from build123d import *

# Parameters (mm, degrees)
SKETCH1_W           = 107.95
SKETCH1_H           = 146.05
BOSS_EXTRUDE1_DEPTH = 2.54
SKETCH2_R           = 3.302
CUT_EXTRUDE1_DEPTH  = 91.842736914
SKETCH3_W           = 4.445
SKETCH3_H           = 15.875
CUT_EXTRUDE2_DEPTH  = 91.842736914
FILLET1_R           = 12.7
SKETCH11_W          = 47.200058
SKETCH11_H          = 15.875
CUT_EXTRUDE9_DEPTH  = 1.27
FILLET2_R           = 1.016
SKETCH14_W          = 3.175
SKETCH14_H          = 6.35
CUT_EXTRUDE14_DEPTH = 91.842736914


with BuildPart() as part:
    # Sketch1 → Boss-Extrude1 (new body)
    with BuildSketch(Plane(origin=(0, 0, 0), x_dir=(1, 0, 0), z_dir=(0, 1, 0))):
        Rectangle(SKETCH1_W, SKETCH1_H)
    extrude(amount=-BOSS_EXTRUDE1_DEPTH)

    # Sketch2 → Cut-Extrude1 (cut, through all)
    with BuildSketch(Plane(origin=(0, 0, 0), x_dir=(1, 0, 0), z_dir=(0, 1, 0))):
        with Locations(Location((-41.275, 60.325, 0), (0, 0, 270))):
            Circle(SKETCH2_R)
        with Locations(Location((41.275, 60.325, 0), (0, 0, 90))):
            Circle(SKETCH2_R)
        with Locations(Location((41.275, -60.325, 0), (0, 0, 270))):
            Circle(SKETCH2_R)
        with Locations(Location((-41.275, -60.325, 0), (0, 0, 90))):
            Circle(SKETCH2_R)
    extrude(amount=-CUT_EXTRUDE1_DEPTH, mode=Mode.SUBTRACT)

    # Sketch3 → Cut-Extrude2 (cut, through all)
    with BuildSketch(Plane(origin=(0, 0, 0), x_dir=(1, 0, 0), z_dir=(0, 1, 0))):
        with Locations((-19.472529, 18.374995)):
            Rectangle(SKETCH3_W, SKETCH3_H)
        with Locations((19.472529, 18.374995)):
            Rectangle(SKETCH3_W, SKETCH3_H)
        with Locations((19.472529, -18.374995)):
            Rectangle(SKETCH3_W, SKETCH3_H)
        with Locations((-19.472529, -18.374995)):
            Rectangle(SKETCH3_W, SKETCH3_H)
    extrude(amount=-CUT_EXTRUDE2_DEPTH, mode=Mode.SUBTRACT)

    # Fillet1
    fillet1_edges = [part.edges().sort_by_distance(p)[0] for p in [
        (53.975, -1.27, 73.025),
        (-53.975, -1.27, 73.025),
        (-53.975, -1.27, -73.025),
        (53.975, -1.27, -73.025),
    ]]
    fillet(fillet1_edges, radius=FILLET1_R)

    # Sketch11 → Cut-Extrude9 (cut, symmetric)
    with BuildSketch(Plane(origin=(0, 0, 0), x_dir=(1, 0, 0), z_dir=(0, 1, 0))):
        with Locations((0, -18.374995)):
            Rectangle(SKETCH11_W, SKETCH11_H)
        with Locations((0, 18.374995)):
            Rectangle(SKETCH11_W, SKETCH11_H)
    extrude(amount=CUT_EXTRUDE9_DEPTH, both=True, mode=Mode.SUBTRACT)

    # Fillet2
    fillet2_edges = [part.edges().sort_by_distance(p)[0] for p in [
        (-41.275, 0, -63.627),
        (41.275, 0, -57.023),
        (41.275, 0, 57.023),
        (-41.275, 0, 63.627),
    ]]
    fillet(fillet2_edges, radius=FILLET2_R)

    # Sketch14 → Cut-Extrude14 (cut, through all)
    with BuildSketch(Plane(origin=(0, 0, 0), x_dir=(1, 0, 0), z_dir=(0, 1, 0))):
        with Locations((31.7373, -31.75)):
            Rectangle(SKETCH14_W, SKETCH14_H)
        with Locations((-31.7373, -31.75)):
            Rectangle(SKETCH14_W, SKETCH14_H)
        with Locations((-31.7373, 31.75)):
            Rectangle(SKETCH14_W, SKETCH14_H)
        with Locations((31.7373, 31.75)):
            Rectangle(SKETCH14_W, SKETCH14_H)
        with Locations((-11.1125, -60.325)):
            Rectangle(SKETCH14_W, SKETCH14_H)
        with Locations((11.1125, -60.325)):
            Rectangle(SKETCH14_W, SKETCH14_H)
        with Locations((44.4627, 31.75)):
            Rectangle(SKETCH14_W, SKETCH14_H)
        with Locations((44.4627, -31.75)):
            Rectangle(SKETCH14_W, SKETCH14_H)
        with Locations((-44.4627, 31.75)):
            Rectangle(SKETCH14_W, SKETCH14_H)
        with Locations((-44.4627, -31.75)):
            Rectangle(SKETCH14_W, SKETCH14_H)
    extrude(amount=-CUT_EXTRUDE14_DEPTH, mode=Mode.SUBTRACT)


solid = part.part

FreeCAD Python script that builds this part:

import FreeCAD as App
import Part
import Sketcher
Q = App.Units.Quantity


def edges_at(feature, points):
    """Names of the edges that pass closest to the given points."""
    edges = feature.Shape.Edges
    near = lambda p: min(range(len(edges)), key=lambda i: edges[i].distToShape(Part.Vertex(*p))[0])
    return sorted({f"Edge{near(p) + 1}" for p in points})


def add_polygon(sketch, points):
    """Adds a closed chain of lines whose ends are joined by coincident constraints."""
    first, n = sketch.GeometryCount, len(points)
    for a, b in zip(points, points[1:] + points[:1]):
        sketch.addGeometry(Part.LineSegment(App.Vector(*a, 0), App.Vector(*b, 0)), False)
    for i in range(n):
        sketch.addConstraint(Sketcher.Constraint("Coincident", first + i, 2, first + (i + 1) % n, 1))

doc = App.newDocument("Part")
params = doc.addObject("Spreadsheet::Sheet", "Params")
for row, (alias, value) in enumerate([
    ("sketch1_width", "4.25 in"),
    ("sketch1_height", "5.75 in"),
    ("pad1_length", "0.1 in"),
    ("sketch2_diameter", "0.26 in"),
    ("sketch3_width", "0.175 in"),
    ("sketch3_height", "0.625 in"),
    ("fillet_radius", "0.5 in"),
    ("sketch4_height", "0.625 in"),
    ("pocket3_length", "0.1 in"),
    ("fillet2_radius", "0.04 in"),
    ("sketch5_height", "0.25 in"),
    ("sketch5_width", "0.125 in"),
], start=1):
    params.set(f"A{row}", alias)
    params.set(f"B{row}", "=" + value)
    params.setAlias(f"B{row}", alias)

body = doc.addObject("PartDesign::Body", "Body")

sketch1 = body.newObject("Sketcher::SketchObject", "Sketch")
sketch1.AttachmentSupport = (doc.getObject("XZ_Plane"), [""])
sketch1.MapMode = "FlatFace"
add_polygon(sketch1, [(-54, -73), (-54, 73), (54, 73), (54, -73)])
sketch1.addConstraint([
    Sketcher.Constraint("Vertical", 0),
    Sketcher.Constraint("Horizontal", 1),
    Sketcher.Constraint("Vertical", 2),
    Sketcher.Constraint("Horizontal", 3),
    Sketcher.Constraint("Symmetric", 0, 2, 2, 2, -1, 1),
    Sketcher.Constraint("DistanceX", 1, 1, 1, 2, Q("4.25 in")),
    Sketcher.Constraint("DistanceY", 0, 1, 0, 2, Q("5.75 in")),
])
sketch1.setExpression("Constraints[9]", "Params.sketch1_width")
sketch1.setExpression("Constraints[10]", "Params.sketch1_height")
pad1 = body.newObject("PartDesign::Pad", "Pad")
pad1.Profile = sketch1
pad1.setExpression("Length", "Params.pad1_length")

sketch2 = body.newObject("Sketcher::SketchObject", "Sketch001")
sketch2.AttachmentSupport = (doc.getObject("XZ_Plane"), [""])
sketch2.MapMode = "FlatFace"
sketch2.addGeometry([
    Part.Circle(App.Vector(-41.3, -60.3, 0), App.Vector(0, 0, 1), 3.3),
    Part.Circle(App.Vector(41.3, -60.3, 0), App.Vector(0, 0, 1), 3.3),
    Part.Circle(App.Vector(41.3, 60.3, 0), App.Vector(0, 0, 1), 3.3),
    Part.Circle(App.Vector(-41.3, 60.3, 0), App.Vector(0, 0, 1), 3.3),
], False)
sketch2.addConstraint([
    Sketcher.Constraint("Equal", 0, 1),
    Sketcher.Constraint("Equal", 1, 2),
    Sketcher.Constraint("Equal", 2, 3),
    Sketcher.Constraint("Symmetric", 0, 3, 2, 3, -1, 1),
    Sketcher.Constraint("Symmetric", 1, 3, 3, 3, -1, 1),
    Sketcher.Constraint("Symmetric", 0, 3, 1, 3, -2),
    Sketcher.Constraint("Diameter", 0, Q("0.26 in")),
    Sketcher.Constraint("DistanceX", 0, 3, 1, 3, Q("3.25 in")),
    Sketcher.Constraint("DistanceY", 1, 3, 2, 3, Q("4.75 in")),
])
sketch2.setExpression("Constraints[6]", "Params.sketch2_diameter")
pocket1 = body.newObject("PartDesign::Pocket", "Pocket")
pocket1.Profile = sketch2
pocket1.Type = "ThroughAll"
pocket1.Reversed = True

sketch3 = body.newObject("Sketcher::SketchObject", "Sketch002")
sketch3.AttachmentSupport = (doc.getObject("XZ_Plane"), [""])
sketch3.MapMode = "FlatFace"
add_polygon(sketch3, [(-21.7, -26.3), (-21.7, -10.4), (-17.3, -10.4), (-17.3, -26.3)])
add_polygon(sketch3, [(17.3, -26.3), (17.3, -10.4), (21.7, -10.4), (21.7, -26.3)])
add_polygon(sketch3, [(17.3, 10.4), (17.3, 26.3), (21.7, 26.3), (21.7, 10.4)])
add_polygon(sketch3, [(-21.7, 10.4), (-21.7, 26.3), (-17.3, 26.3), (-17.3, 10.4)])
sketch3.addConstraint([
    Sketcher.Constraint("Vertical", 0),
    Sketcher.Constraint("Horizontal", 1),
    Sketcher.Constraint("Vertical", 2),
    Sketcher.Constraint("Horizontal", 3),
    Sketcher.Constraint("Vertical", 4),
    Sketcher.Constraint("Horizontal", 5),
    Sketcher.Constraint("Vertical", 6),
    Sketcher.Constraint("Horizontal", 7),
    Sketcher.Constraint("Vertical", 8),
    Sketcher.Constraint("Horizontal", 9),
    Sketcher.Constraint("Vertical", 10),
    Sketcher.Constraint("Horizontal", 11),
    Sketcher.Constraint("Vertical", 12),
    Sketcher.Constraint("Horizontal", 13),
    Sketcher.Constraint("Vertical", 14),
    Sketcher.Constraint("Horizontal", 15),
    Sketcher.Constraint("Symmetric", 2, 2, 8, 2, -1, 1),
    Sketcher.Constraint("Symmetric", 0, 2, 10, 2, -1, 1),
    Sketcher.Constraint("Symmetric", 6, 2, 12, 2, -1, 1),
    Sketcher.Constraint("Symmetric", 4, 2, 14, 2, -1, 1),
    Sketcher.Constraint("Symmetric", 1, 2, 4, 2, -2),
    Sketcher.Constraint("Symmetric", 3, 2, 6, 2, -2),
    Sketcher.Constraint("DistanceX", 1, 1, 1, 2, Q("0.175 in")),
    Sketcher.Constraint("DistanceY", 0, 1, 0, 2, Q("0.625 in")),
    Sketcher.Constraint("DistanceX", 0, 2, -1, 1, Q("21.695029 mm")),
    Sketcher.Constraint("DistanceY", 4, 2, 8, 2, Q("36.74999 mm")),
])
sketch3.setExpression("Constraints[38]", "Params.sketch3_width")
sketch3.setExpression("Constraints[39]", "Params.sketch3_height")
pocket2 = body.newObject("PartDesign::Pocket", "Pocket001")
pocket2.Profile = sketch3
pocket2.Type = "ThroughAll"
pocket2.Reversed = True
doc.recompute()

fillet = body.newObject("PartDesign::Fillet", "Fillet")
fillet.Base = (pocket2, edges_at(pocket2, [
    (53.975, -1.27, 73.025),
    (-53.975, -1.27, 73.025),
    (-53.975, -1.27, -73.025),
    (53.975, -1.27, -73.025),
]))
fillet.setExpression("Radius", "Params.fillet_radius")

sketch4 = body.newObject("Sketcher::SketchObject", "Sketch003")
sketch4.AttachmentSupport = (doc.getObject("XZ_Plane"), [""])
sketch4.MapMode = "FlatFace"
add_polygon(sketch4, [(-24, 10), (-24, 26), (24, 26), (24, 10)])
add_polygon(sketch4, [(-24, -26), (-24, -10), (24, -10), (24, -26)])
sketch4.addConstraint([
    Sketcher.Constraint("Vertical", 0),
    Sketcher.Constraint("Horizontal", 1),
    Sketcher.Constraint("Vertical", 2),
    Sketcher.Constraint("Horizontal", 3),
    Sketcher.Constraint("Vertical", 4),
    Sketcher.Constraint("Horizontal", 5),
    Sketcher.Constraint("Vertical", 6),
    Sketcher.Constraint("Horizontal", 7),
    Sketcher.Constraint("Symmetric", 2, 2, 4, 2, -1, 1),
    Sketcher.Constraint("Symmetric", 0, 2, 6, 2, -1, 1),
    Sketcher.Constraint("Vertical", 3, 2, 4, 2),
    Sketcher.Constraint("DistanceY", 0, 1, 0, 2, Q("0.625 in")),
    Sketcher.Constraint("DistanceX", 1, 1, 1, 2, Q("47.200058 mm")),
    Sketcher.Constraint("DistanceY", 4, 2, 3, 2, Q("20.87499 mm")),
])
sketch4.setExpression("Constraints[19]", "Params.sketch4_height")
pocket3 = body.newObject("PartDesign::Pocket", "Pocket002")
pocket3.Profile = sketch4
pocket3.setExpression("Length", "Params.pocket3_length")
pocket3.Midplane = True
doc.recompute()

fillet2 = body.newObject("PartDesign::Fillet", "Fillet001")
fillet2.Base = (pocket3, edges_at(pocket3, [
    (-41.275, 0, -63.627),
    (41.275, 0, -57.023),
    (41.275, 0, 57.023),
    (-41.275, 0, 63.627),
]))
fillet2.setExpression("Radius", "Params.fillet2_radius")

sketch5 = body.newObject("Sketcher::SketchObject", "Sketch004")
sketch5.AttachmentSupport = (doc.getObject("XZ_Plane"), [""])
sketch5.MapMode = "FlatFace"
add_polygon(sketch5, [(30.1, 28.6), (30.1, 34.9), (33.3, 34.9), (33.3, 28.6)])
add_polygon(sketch5, [(-33.3, 28.6), (-33.3, 34.9), (-30.1, 34.9), (-30.1, 28.6)])
add_polygon(sketch5, [(-33.3, -34.9), (-33.3, -28.6), (-30.1, -28.6), (-30.1, -34.9)])
add_polygon(sketch5, [(30.1, -34.9), (30.1, -28.6), (33.3, -28.6), (33.3, -34.9)])
add_polygon(sketch5, [(-12.7, 57.1), (-12.7, 63.5), (-9.5, 63.5), (-9.5, 57.1)])
add_polygon(sketch5, [(9.5, 57.1), (9.5, 63.5), (12.7, 63.5), (12.7, 57.1)])
add_polygon(sketch5, [(42.9, -34.9), (42.9, -28.6), (46.1, -28.6), (46.1, -34.9)])
add_polygon(sketch5, [(42.9, 28.6), (42.9, 34.9), (46.1, 34.9), (46.1, 28.6)])
add_polygon(sketch5, [(-46.1, -34.9), (-46.1, -28.6), (-42.9, -28.6), (-42.9, -34.9)])
add_polygon(sketch5, [(-46.1, 28.6), (-46.1, 34.9), (-42.9, 34.9), (-42.9, 28.6)])
sketch5.addConstraint([
    Sketcher.Constraint("Vertical", 0),
    Sketcher.Constraint("Horizontal", 1),
    Sketcher.Constraint("Vertical", 2),
    Sketcher.Constraint("Horizontal", 3),
    Sketcher.Constraint("Vertical", 4),
    Sketcher.Constraint("Horizontal", 5),
    Sketcher.Constraint("Vertical", 6),
    Sketcher.Constraint("Horizontal", 7),
    Sketcher.Constraint("Vertical", 8),
    Sketcher.Constraint("Horizontal", 9),
    Sketcher.Constraint("Vertical", 10),
    Sketcher.Constraint("Horizontal", 11),
    Sketcher.Constraint("Vertical", 12),
    Sketcher.Constraint("Horizontal", 13),
    Sketcher.Constraint("Vertical", 14),
    Sketcher.Constraint("Horizontal", 15),
    Sketcher.Constraint("Vertical", 16),
    Sketcher.Constraint("Horizontal", 17),
    Sketcher.Constraint("Vertical", 18),
    Sketcher.Constraint("Horizontal", 19),
    Sketcher.Constraint("Vertical", 20),
    Sketcher.Constraint("Horizontal", 21),
    Sketcher.Constraint("Vertical", 22),
    Sketcher.Constraint("Horizontal", 23),
    Sketcher.Constraint("Vertical", 24),
    Sketcher.Constraint("Horizontal", 25),
    Sketcher.Constraint("Vertical", 26),
    Sketcher.Constraint("Horizontal", 27),
    Sketcher.Constraint("Vertical", 28),
    Sketcher.Constraint("Horizontal", 29),
    Sketcher.Constraint("Vertical", 30),
    Sketcher.Constraint("Horizontal", 31),
    Sketcher.Constraint("Vertical", 32),
    Sketcher.Constraint("Horizontal", 33),
    Sketcher.Constraint("Vertical", 34),
    Sketcher.Constraint("Horizontal", 35),
    Sketcher.Constraint("Vertical", 36),
    Sketcher.Constraint("Horizontal", 37),
    Sketcher.Constraint("Vertical", 38),
    Sketcher.Constraint("Horizontal", 39),
    Sketcher.Constraint("Symmetric", 2, 2, 8, 2, -1, 1),
    Sketcher.Constraint("Symmetric", 0, 2, 10, 2, -1, 1),
    Sketcher.Constraint("Symmetric", 6, 2, 12, 2, -1, 1),
    Sketcher.Constraint("Symmetric", 4, 2, 14, 2, -1, 1),
    Sketcher.Constraint("Symmetric", 30, 2, 32, 2, -1, 1),
    Sketcher.Constraint("Symmetric", 28, 2, 34, 2, -1, 1),
    Sketcher.Constraint("Symmetric", 26, 2, 36, 2, -1, 1),
    Sketcher.Constraint("Symmetric", 24, 2, 38, 2, -1, 1),
    Sketcher.Constraint("Symmetric", 1, 2, 4, 2, -2),
    Sketcher.Constraint("Symmetric", 3, 2, 6, 2, -2),
    Sketcher.Constraint("Symmetric", 17, 2, 20, 2, -2),
    Sketcher.Constraint("Symmetric", 19, 2, 22, 2, -2),
    Sketcher.Constraint("Symmetric", 25, 2, 32, 2, -2),
    Sketcher.Constraint("Symmetric", 27, 2, 34, 2, -2),
    Sketcher.Constraint("Horizontal", 13, 2, 24, 2),
    Sketcher.Constraint("Horizontal", 15, 2, 26, 2),
    Sketcher.Constraint("Equal", 15, 17),
    Sketcher.Constraint("Equal", 23, 25),
    Sketcher.Constraint("Equal", 14, 16),
    Sketcher.Constraint("DistanceX", 16, 2, 21, 2, Q("1 in")),
    Sketcher.Constraint("DistanceY", 0, 1, 0, 2, Q("0.25 in")),
    Sketcher.Constraint("DistanceY", -1, 1, 16, 2, Q("2.5 in")),
    Sketcher.Constraint("DistanceY", 8, 2, 4, 2, Q("2.5 in")),
    Sketcher.Constraint("DistanceX", 1, 1, 1, 2, Q("0.125 in")),
    Sketcher.Constraint("DistanceX", -1, 1, 0, 2, Q("1.187 in")),
    Sketcher.Constraint("DistanceX", -1, 1, 24, 2, Q("1.688 in")),
])
sketch5.setExpression("Constraints[100]", "Params.sketch5_height")
sketch5.setExpression("Constraints[103]", "Params.sketch5_width")
pocket4 = body.newObject("PartDesign::Pocket", "Pocket003")
pocket4.Profile = sketch5
pocket4.Type = "ThroughAll"
pocket4.Reversed = True

doc.recompute()
